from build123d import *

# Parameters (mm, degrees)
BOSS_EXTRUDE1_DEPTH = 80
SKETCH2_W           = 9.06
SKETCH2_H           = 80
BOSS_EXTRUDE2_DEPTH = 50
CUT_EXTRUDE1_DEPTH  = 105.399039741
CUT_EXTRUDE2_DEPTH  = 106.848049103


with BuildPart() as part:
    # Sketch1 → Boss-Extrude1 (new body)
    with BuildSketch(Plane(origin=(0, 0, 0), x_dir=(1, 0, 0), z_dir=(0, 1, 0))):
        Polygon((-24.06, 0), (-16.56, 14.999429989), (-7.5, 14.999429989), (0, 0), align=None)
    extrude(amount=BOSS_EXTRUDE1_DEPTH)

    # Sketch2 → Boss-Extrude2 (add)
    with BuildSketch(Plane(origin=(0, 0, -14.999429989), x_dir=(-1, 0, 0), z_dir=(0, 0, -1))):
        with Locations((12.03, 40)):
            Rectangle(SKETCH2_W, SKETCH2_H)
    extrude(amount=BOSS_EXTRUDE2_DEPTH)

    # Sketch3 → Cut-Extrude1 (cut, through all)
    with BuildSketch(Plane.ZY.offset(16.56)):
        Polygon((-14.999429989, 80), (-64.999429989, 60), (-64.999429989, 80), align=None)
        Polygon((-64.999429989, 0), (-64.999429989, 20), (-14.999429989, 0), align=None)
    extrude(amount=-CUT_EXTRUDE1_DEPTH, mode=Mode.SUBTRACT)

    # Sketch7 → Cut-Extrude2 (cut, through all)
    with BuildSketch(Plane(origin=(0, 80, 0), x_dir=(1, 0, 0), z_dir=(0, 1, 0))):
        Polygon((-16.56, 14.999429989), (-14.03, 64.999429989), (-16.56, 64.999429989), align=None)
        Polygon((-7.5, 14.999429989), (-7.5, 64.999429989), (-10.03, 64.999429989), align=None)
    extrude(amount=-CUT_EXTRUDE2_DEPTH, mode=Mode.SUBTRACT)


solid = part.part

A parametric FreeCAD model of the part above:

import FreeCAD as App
import Part
import Sketcher
from FreeCAD import Vector
Q = App.Units.Quantity


def add_polygon(sketch, points):
    """Adds a closed chain of lines whose ends are joined by coincident constraints."""
    first, n = sketch.GeometryCount, len(points)
    for a, b in zip(points, points[1:] + points[:1]):
        sketch.addGeometry(Part.LineSegment(App.Vector(*a, 0), App.Vector(*b, 0)), False)
    for i in range(n):
        sketch.addConstraint(Sketcher.Constraint("Coincident", first + i, 2, first + (i + 1) % n, 1))

doc = App.newDocument("Part")
body = doc.addObject("PartDesign::Body", "Body")

# Sketch on XZ plane
sketch1 = body.newObject("Sketcher::SketchObject", "Sketch")
sketch1.AttachmentSupport = (doc.getObject("XZ_Plane"), [""])
sketch1.MapMode = "FlatFace"
add_polygon(sketch1, [(-17, -15), (-24, 0), (0, 0), (-8, -15)])  # lines 0-3
sketch1.addConstraint([
    Sketcher.Constraint("Horizontal", 1),
    Sketcher.Constraint("Horizontal", 3),
    Sketcher.Constraint("Coincident", 1, 2, -1, 1),
    Sketcher.Constraint("Equal", 0, 2),
    Sketcher.Constraint("DistanceX", 1, 1, 1, 2, Q("24.06 mm")),
    Sketcher.Constraint("DistanceX", 3, 2, 3, 1, Q("9.06 mm")),
    Sketcher.Constraint("Distance", 0, Q("16.77 mm")),
])
pad1 = body.newObject("PartDesign::Pad", "Pad")
pad1.Profile = sketch1
pad1.Length = 80
pad1.Reversed = True

# Sketch on XY plane
sketch2 = body.newObject("Sketcher::SketchObject", "Sketch001")
sketch2.AttachmentSupport = (doc.getObject("XY_Plane"), [""])
sketch2.MapMode = "FlatFace"
sketch2.AttachmentOffset = App.Placement(Vector(0, 0, -14.99943), App.Rotation())
add_polygon(sketch2, [(-8, 80), (-8, 0), (-17, 0), (-17, 80)])  # lines 0-3
sketch2.addConstraint([
    Sketcher.Constraint("Vertical", 0),
    Sketcher.Constraint("Horizontal", 1),
    Sketcher.Constraint("Vertical", 2),
    Sketcher.Constraint("Horizontal", 3),
    Sketcher.Constraint("PointOnObject", 0, 2, -1),
    Sketcher.Constraint("DistanceY", 0, 2, 0, 1, Q("80 mm")),
    Sketcher.Constraint("DistanceX", 1, 2, 1, 1, Q("9.06 mm")),
    Sketcher.Constraint("DistanceX", 0, 2, -1, 1, Q("7.5 mm")),
])
pad2 = body.newObject("PartDesign::Pad", "Pad001")
pad2.Profile = sketch2
pad2.Length = 50
pad2.Reversed = True

# Sketch on YZ plane
sketch3 = body.newObject("Sketcher::SketchObject", "Sketch002")
sketch3.AttachmentSupport = (doc.getObject("YZ_Plane"), [""])
sketch3.MapMode = "FlatFace"
sketch3.AttachmentOffset = App.Placement(Vector(0, 0, -16.56), App.Rotation())
add_polygon(sketch3, [(60, -65), (80, -15), (80, -65)])  # lines 0-2
add_polygon(sketch3, [(20, -65), (0, -65), (0, -15)])  # lines 3-5
sketch3.addConstraint([
    Sketcher.Constraint("Vertical", 1),
    Sketcher.Constraint("Horizontal", 2),
    Sketcher.Constraint("Horizontal", 3),
    Sketcher.Constraint("Vertical", 4),
    Sketcher.Constraint("PointOnObject", 3, 2, -2),
    Sketcher.Constraint("Horizontal", 2, 2, 3, 2),
    Sketcher.Constraint("Horizontal", 0, 2, 4, 2),
    Sketcher.Constraint("Equal", 2, 3),
    Sketcher.Constraint("DistanceX", 2, 2, 2, 1, Q("20 mm")),
    Sketcher.Constraint("DistanceY", 1, 2, 1, 1, Q("50 mm")),
    Sketcher.Constraint("DistanceX", -1, 1, 0, 2, Q("80 mm")),
    Sketcher.Constraint("DistanceY", 0, 2, -1, 1, Q("14.99943 mm")),
])
pocket1 = body.newObject("PartDesign::Pocket", "Pocket")
pocket1.Profile = sketch3
pocket1.Type = "ThroughAll"
pocket1.Reversed = True

# Sketch on XZ plane
sketch4 = body.newObject("Sketcher::SketchObject", "Sketch003")
sketch4.AttachmentSupport = (doc.getObject("XZ_Plane"), [""])
sketch4.MapMode = "FlatFace"
sketch4.AttachmentOffset = App.Placement(Vector(0, 0, -80), App.Rotation())
add_polygon(sketch4, [(-16.6, -15), (-14, -65), (-16.6, -65)])  # lines 0-2
add_polygon(sketch4, [(-7.5, -15), (-7.5, -65), (-10, -65)])  # lines 3-5
sketch4.addConstraint([
    Sketcher.Constraint("Horizontal", 1),
    Sketcher.Constraint("Vertical", 2),
    Sketcher.Constraint("Vertical", 3),
    Sketcher.Constraint("Horizontal", 4),
    Sketcher.Constraint("Horizontal", 1, 2, 3, 2),
    Sketcher.Constraint("Horizontal", 2, 2, 5, 2),
    Sketcher.Constraint("Equal", 1, 4),
    Sketcher.Constraint("DistanceY", 2, 1, 2, 2, Q("50 mm")),
    Sketcher.Constraint("DistanceX", 0, 2, 4, 2, Q("4 mm")),
    Sketcher.Constraint("DistanceX", 1, 2, 1, 1, Q("2.53 mm")),
    Sketcher.Constraint("DistanceX", 3, 2, -1, 1, Q("7.5 mm")),
    Sketcher.Constraint("DistanceY", 0, 2, -1, 1, Q("64.99943 mm")),
])
pocket2 = body.newObject("PartDesign::Pocket", "Pocket001")
pocket2.Profile = sketch4
pocket2.Type = "ThroughAll"
pocket2.Reversed = True

doc.recompute()
